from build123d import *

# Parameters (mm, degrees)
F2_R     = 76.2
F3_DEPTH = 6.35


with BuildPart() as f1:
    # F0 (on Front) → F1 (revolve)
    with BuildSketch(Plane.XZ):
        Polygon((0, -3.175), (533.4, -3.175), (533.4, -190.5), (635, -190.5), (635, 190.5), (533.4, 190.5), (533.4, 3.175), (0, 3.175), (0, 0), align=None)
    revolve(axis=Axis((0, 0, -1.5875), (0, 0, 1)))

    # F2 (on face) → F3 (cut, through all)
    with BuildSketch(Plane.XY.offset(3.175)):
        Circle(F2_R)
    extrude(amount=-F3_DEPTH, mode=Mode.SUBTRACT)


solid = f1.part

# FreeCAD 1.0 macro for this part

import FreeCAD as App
import Part
import Sketcher

V = App.Vector
Q = App.Units.Quantity

doc = App.newDocument("Part")
body = doc.addObject("PartDesign::Body", "Body")

sketch1 = body.newObject("Sketcher::SketchObject", "Sketch")
sketch1.AttachmentSupport = (doc.getObject("XZ_Plane"), [""])
sketch1.MapMode = "FlatFace"
sketch1.addGeometry(Part.LineSegment(V(0, -3.175, 0), V(533.4, -3.175, 0)), False)
sketch1.addGeometry(Part.LineSegment(V(533.4, -3.175, 0), V(533.4, -190.5, 0)), False)
sketch1.addGeometry(Part.LineSegment(V(533.4, -190.5, 0), V(635, -190.5, 0)), False)
sketch1.addGeometry(Part.LineSegment(V(635, -190.5, 0), V(635, 190.5, 0)), False)
sketch1.addGeometry(Part.LineSegment(V(635, 190.5, 0), V(533.4, 190.5, 0)), False)
sketch1.addGeometry(Part.LineSegment(V(533.4, 190.5, 0), V(533.4, 3.175, 0)), False)
sketch1.addGeometry(Part.LineSegment(V(533.4, 3.175, 0), V(0, 3.175, 0)), False)
sketch1.addGeometry(Part.LineSegment(V(0, 3.175, 0), V(0, -3.175, 0)), False)
sketch1.addConstraint(Sketcher.Constraint("Coincident", 0, 2, 1, 1))
sketch1.addConstraint(Sketcher.Constraint("Coincident", 1, 2, 2, 1))
sketch1.addConstraint(Sketcher.Constraint("Coincident", 2, 2, 3, 1))
sketch1.addConstraint(Sketcher.Constraint("Coincident", 3, 2, 4, 1))
sketch1.addConstraint(Sketcher.Constraint("Coincident", 4, 2, 5, 1))
sketch1.addConstraint(Sketcher.Constraint("Coincident", 5, 2, 6, 1))
sketch1.addConstraint(Sketcher.Constraint("Coincident", 6, 2, 7, 1))
sketch1.addConstraint(Sketcher.Constraint("Coincident", 7, 2, 0, 1))
sketch1.addConstraint(Sketcher.Constraint("Horizontal", 0))
sketch1.addConstraint(Sketcher.Constraint("Vertical", 1))
sketch1.addConstraint(Sketcher.Constraint("Horizontal", 2))
sketch1.addConstraint(Sketcher.Constraint("Vertical", 3))
sketch1.addConstraint(Sketcher.Constraint("Horizontal", 4))
sketch1.addConstraint(Sketcher.Constraint("Vertical", 5))
sketch1.addConstraint(Sketcher.Constraint("Horizontal", 6))
sketch1.addConstraint(Sketcher.Constraint("Vertical", 7))
sketch1.addConstraint(Sketcher.Constraint("Symmetric", 6, 2, 7, 2, -1, 1))
sketch1.addConstraint(Sketcher.Constraint("Symmetric", 1, 2, 4, 2, -1))
sketch1.addConstraint(Sketcher.Constraint("DistanceX", 0, 1, 0, 2, Q("21 in")))
sketch1.addConstraint(Sketcher.Constraint("DistanceX", 2, 1, 2, 2, Q("4 in")))
sketch1.addConstraint(Sketcher.Constraint("DistanceY", 3, 1, 3, 2, Q("15 in")))
sketch1.addConstraint(Sketcher.Constraint("DistanceY", 7, 2, 7, 1, Q("0.25 in")))
revolution = body.newObject("PartDesign::Revolution", "Revolution")
revolution.Profile = sketch1
revolution.ReferenceAxis = (sketch1, ["V_Axis"])
revolution.Angle = 360

sketch2 = body.newObject("Sketcher::SketchObject", "Sketch001")
sketch2.AttachmentSupport = (doc.getObject("XY_Plane"), [""])
sketch2.MapMode = "FlatFace"
sketch2.AttachmentOffset = App.Placement(V(0, 0, 0.125 * 25.4), App.Rotation())
sketch2.addGeometry(Part.Circle(V(0, 0, 0), V(0, 0, 1), 76.2), False)
sketch2.addConstraint(Sketcher.Constraint("Coincident", 0, 3, -1, 1))
sketch2.addConstraint(Sketcher.Constraint("Diameter", 0, Q("6 in")))
pocket1 = body.newObject("PartDesign::Pocket", "Pocket")
pocket1.Profile = sketch2
pocket1.Type = "ThroughAll"

doc.recompute()
